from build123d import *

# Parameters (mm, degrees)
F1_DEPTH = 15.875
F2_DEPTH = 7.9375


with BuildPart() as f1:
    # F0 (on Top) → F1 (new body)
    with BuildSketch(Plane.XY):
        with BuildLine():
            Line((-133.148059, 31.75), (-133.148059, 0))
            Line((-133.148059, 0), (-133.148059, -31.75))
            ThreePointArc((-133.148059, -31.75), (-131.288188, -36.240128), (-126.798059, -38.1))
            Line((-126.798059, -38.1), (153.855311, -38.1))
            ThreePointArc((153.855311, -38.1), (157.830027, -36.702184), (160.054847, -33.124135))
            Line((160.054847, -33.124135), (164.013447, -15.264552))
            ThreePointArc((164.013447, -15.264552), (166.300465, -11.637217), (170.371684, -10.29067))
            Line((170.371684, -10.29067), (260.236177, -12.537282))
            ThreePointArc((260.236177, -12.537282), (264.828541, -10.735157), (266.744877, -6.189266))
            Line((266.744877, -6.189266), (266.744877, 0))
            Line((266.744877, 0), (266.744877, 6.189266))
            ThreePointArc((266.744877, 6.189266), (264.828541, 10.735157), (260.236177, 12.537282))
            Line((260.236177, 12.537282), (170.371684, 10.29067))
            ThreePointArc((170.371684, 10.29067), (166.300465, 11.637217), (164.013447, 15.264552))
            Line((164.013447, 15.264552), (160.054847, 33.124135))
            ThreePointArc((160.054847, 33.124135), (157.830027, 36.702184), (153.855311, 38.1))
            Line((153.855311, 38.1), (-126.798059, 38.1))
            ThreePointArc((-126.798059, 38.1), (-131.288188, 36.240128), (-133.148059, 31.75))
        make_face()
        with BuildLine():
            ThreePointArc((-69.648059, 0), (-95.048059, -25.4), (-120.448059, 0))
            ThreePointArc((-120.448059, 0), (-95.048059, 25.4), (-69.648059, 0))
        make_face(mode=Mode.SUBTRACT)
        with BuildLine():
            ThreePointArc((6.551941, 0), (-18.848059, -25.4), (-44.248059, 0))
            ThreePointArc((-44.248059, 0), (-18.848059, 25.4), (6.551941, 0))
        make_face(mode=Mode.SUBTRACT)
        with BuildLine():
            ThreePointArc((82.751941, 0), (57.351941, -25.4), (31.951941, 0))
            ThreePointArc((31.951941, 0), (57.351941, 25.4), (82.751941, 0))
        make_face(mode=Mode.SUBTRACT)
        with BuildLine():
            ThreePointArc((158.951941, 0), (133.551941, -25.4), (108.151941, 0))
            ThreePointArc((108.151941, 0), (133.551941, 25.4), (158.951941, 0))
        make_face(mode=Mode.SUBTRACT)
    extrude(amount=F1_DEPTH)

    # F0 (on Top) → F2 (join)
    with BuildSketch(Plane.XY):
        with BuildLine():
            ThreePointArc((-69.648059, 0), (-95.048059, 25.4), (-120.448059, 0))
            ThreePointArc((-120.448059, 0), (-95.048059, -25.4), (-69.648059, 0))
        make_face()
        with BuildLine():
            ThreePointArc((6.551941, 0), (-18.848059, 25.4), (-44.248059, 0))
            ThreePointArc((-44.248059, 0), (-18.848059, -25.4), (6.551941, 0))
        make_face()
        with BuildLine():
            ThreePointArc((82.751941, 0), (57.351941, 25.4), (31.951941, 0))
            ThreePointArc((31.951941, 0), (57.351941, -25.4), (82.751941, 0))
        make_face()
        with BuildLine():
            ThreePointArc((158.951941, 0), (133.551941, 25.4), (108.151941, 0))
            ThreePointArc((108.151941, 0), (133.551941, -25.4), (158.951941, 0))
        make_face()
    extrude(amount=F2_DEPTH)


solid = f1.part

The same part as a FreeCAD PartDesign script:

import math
import FreeCAD as App
import Part
import Sketcher

V = App.Vector
Q = App.Units.Quantity

doc = App.newDocument("Part")
body = doc.addObject("PartDesign::Body", "Body")

sketch1 = body.newObject("Sketcher::SketchObject", "Sketch")
sketch1.AttachmentSupport = (doc.getObject("XY_Plane"), [""])
sketch1.MapMode = "FlatFace"
sketch1.addGeometry([
    Part.LineSegment(V(-133, 32, 0), V(-133, -32, 0)),
    Part.ArcOfCircle(Part.Circle(V(-127, -32, 0), V(0, 0, 1), 6), math.radians(180), math.radians(270)),
    Part.LineSegment(V(-127, -38, 0), V(154, -38, 0)),
    Part.ArcOfCircle(Part.Circle(V(154, -32, 0), V(0, 0, 1), 6), math.radians(-90), math.radians(-12)),
    Part.LineSegment(V(160, -33, 0), V(164, -15, 0)),
    Part.ArcOfCircle(Part.Circle(V(170, -17, 0), V(0, 0, 1), 6), math.radians(89), math.radians(168)),
    Part.LineSegment(V(170, -10, 0), V(260, -13, 0)),
    Part.ArcOfCircle(Part.Circle(V(260, -6, 0), V(0, 0, 1), 6), math.radians(-91), math.radians(0)),
    Part.LineSegment(V(267, -6, 0), V(267, 6, 0)),
    Part.ArcOfCircle(Part.Circle(V(260, 6, 0), V(0, 0, 1), 6), math.radians(0), math.radians(91)),
    Part.LineSegment(V(260, 13, 0), V(170, 10, 0)),
    Part.ArcOfCircle(Part.Circle(V(170, 17, 0), V(0, 0, 1), 6), math.radians(-168), math.radians(-89)),
    Part.LineSegment(V(164, 15, 0), V(160, 33, 0)),
    Part.ArcOfCircle(Part.Circle(V(154, 32, 0), V(0, 0, 1), 6), math.radians(12), math.radians(90)),
    Part.LineSegment(V(154, 38, 0), V(-127, 38, 0)),
    Part.ArcOfCircle(Part.Circle(V(-127, 32, 0), V(0, 0, 1), 6), math.radians(90), math.radians(180)),
    Part.Circle(V(-95, 0, 0), V(0, 0, 1), 25),
    Part.Circle(V(-19, 0, 0), V(0, 0, 1), 25),
    Part.Circle(V(57, 0, 0), V(0, 0, 1), 25),
    Part.Circle(V(134, 0, 0), V(0, 0, 1), 25),
], False)
sketch1.addConstraint([
    Sketcher.Constraint("Tangent", 0, 2, 1, 1),
    Sketcher.Constraint("Tangent", 1, 2, 2, 1),
    Sketcher.Constraint("Tangent", 2, 2, 3, 1),
    Sketcher.Constraint("Tangent", 3, 2, 4, 1),
    Sketcher.Constraint("Tangent", 4, 2, 5, 2),
    Sketcher.Constraint("Tangent", 5, 1, 6, 1),
    Sketcher.Constraint("Tangent", 6, 2, 7, 1),
    Sketcher.Constraint("Tangent", 7, 2, 8, 1),
    Sketcher.Constraint("Tangent", 8, 2, 9, 1),
    Sketcher.Constraint("Tangent", 9, 2, 10, 1),
    Sketcher.Constraint("Tangent", 10, 2, 11, 2),
    Sketcher.Constraint("Tangent", 11, 1, 12, 1),
    Sketcher.Constraint("Tangent", 12, 2, 13, 1),
    Sketcher.Constraint("Tangent", 13, 2, 14, 1),
    Sketcher.Constraint("Tangent", 14, 2, 15, 1),
    Sketcher.Constraint("Tangent", 15, 2, 0, 1),
    Sketcher.Constraint("Vertical", 0),
    Sketcher.Constraint("Horizontal", 2),
    Sketcher.Constraint("Vertical", 8),
    Sketcher.Constraint("Horizontal", 14),
    Sketcher.Constraint("Equal", 3, 5),
    Sketcher.Constraint("Equal", 5, 7),
    Sketcher.Constraint("Equal", 7, 9),
    Sketcher.Constraint("Equal", 9, 11),
    Sketcher.Constraint("Equal", 11, 13),
    Sketcher.Constraint("Equal", 11, 15),
    Sketcher.Constraint("Equal", 16, 17),
    Sketcher.Constraint("Equal", 17, 18),
    Sketcher.Constraint("Equal", 18, 19),
    Sketcher.Constraint("Symmetric", 5, 3, 11, 3, -1),
    Sketcher.Constraint("Symmetric", 3, 3, 13, 3, -1),
    Sketcher.Constraint("PointOnObject", 16, 3, -1),
    Sketcher.Constraint("PointOnObject", 17, 3, -1),
    Sketcher.Constraint("PointOnObject", 18, 3, -1),
    Sketcher.Constraint("PointOnObject", 19, 3, -1),
    Sketcher.Constraint("Horizontal", 3, 3, 0, 2),
    Sketcher.Constraint("Vertical", 6, 2, 9, 2),
    Sketcher.Constraint("Diameter", 16, Q("2 in")),
    Sketcher.Constraint("Radius", 1, Q("0.2499999 in")),
    Sketcher.Constraint("DistanceY", 0, 2, 0, 1, Q("2.5 in")),
    Sketcher.Constraint("DistanceX", 16, 3, 17, 3, Q("3 in")),
    Sketcher.Constraint("DistanceX", 17, 3, 18, 3, Q("3 in")),
    Sketcher.Constraint("DistanceX", 18, 3, 19, 3, Q("3 in")),
    Sketcher.Constraint("DistanceX", 0, 2, 16, 3, Q("1.5 in")),
    Sketcher.Constraint("DistanceY", 3, 2, -1, 1, Q("1.3040998 in")),
    Sketcher.Constraint("DistanceX", 2, 1, 2, 2, Q("280.65337 mm")),
    Sketcher.Constraint("DistanceX", 3, 2, 4, 2, Q("3.9586 mm")),
    Sketcher.Constraint("DistanceX", 5, 3, 5, 1, Q("0.1587 mm")),
    Sketcher.Constraint("Distance", 6, Q("89.892571 mm")),
    Sketcher.Constraint("DistanceX", 1, 3, -1, 1, Q("126.798061 mm")),
])
pad1 = body.newObject("PartDesign::Pad", "Pad")
pad1.Profile = sketch1
pad1.Length = Q("0.625 in")

sketch2 = body.newObject("Sketcher::SketchObject", "Sketch001")
sketch2.AttachmentSupport = (doc.getObject("XY_Plane"), [""])
sketch2.MapMode = "FlatFace"
sketch2.addGeometry([
    Part.Circle(V(-95, 0, 0), V(0, 0, 1), 25),
    Part.Circle(V(-19, 0, 0), V(0, 0, 1), 25),
    Part.Circle(V(57, 0, 0), V(0, 0, 1), 25),
    Part.Circle(V(134, 0, 0), V(0, 0, 1), 25),
], False)
sketch2.addConstraint([
    Sketcher.Constraint("Equal", 0, 1),
    Sketcher.Constraint("Equal", 1, 2),
    Sketcher.Constraint("Equal", 2, 3),
    Sketcher.Constraint("PointOnObject", 0, 3, -1),
    Sketcher.Constraint("PointOnObject", 1, 3, -1),
    Sketcher.Constraint("PointOnObject", 2, 3, -1),
    Sketcher.Constraint("PointOnObject", 3, 3, -1),
    Sketcher.Constraint("Diameter", 0, Q("2 in")),
    Sketcher.Constraint("DistanceX", 0, 3, 1, 3, Q("3 in")),
    Sketcher.Constraint("DistanceX", 1, 3, 2, 3, Q("3 in")),
    Sketcher.Constraint("DistanceX", 2, 3, 3, 3, Q("3 in")),
    Sketcher.Constraint("DistanceX", 0, 3, -1, 1, Q("95.048059 mm")),
])
pad2 = body.newObject("PartDesign::Pad", "Pad001")
pad2.Profile = sketch2
pad2.Length = Q("0.3125 in")

doc.recompute()
